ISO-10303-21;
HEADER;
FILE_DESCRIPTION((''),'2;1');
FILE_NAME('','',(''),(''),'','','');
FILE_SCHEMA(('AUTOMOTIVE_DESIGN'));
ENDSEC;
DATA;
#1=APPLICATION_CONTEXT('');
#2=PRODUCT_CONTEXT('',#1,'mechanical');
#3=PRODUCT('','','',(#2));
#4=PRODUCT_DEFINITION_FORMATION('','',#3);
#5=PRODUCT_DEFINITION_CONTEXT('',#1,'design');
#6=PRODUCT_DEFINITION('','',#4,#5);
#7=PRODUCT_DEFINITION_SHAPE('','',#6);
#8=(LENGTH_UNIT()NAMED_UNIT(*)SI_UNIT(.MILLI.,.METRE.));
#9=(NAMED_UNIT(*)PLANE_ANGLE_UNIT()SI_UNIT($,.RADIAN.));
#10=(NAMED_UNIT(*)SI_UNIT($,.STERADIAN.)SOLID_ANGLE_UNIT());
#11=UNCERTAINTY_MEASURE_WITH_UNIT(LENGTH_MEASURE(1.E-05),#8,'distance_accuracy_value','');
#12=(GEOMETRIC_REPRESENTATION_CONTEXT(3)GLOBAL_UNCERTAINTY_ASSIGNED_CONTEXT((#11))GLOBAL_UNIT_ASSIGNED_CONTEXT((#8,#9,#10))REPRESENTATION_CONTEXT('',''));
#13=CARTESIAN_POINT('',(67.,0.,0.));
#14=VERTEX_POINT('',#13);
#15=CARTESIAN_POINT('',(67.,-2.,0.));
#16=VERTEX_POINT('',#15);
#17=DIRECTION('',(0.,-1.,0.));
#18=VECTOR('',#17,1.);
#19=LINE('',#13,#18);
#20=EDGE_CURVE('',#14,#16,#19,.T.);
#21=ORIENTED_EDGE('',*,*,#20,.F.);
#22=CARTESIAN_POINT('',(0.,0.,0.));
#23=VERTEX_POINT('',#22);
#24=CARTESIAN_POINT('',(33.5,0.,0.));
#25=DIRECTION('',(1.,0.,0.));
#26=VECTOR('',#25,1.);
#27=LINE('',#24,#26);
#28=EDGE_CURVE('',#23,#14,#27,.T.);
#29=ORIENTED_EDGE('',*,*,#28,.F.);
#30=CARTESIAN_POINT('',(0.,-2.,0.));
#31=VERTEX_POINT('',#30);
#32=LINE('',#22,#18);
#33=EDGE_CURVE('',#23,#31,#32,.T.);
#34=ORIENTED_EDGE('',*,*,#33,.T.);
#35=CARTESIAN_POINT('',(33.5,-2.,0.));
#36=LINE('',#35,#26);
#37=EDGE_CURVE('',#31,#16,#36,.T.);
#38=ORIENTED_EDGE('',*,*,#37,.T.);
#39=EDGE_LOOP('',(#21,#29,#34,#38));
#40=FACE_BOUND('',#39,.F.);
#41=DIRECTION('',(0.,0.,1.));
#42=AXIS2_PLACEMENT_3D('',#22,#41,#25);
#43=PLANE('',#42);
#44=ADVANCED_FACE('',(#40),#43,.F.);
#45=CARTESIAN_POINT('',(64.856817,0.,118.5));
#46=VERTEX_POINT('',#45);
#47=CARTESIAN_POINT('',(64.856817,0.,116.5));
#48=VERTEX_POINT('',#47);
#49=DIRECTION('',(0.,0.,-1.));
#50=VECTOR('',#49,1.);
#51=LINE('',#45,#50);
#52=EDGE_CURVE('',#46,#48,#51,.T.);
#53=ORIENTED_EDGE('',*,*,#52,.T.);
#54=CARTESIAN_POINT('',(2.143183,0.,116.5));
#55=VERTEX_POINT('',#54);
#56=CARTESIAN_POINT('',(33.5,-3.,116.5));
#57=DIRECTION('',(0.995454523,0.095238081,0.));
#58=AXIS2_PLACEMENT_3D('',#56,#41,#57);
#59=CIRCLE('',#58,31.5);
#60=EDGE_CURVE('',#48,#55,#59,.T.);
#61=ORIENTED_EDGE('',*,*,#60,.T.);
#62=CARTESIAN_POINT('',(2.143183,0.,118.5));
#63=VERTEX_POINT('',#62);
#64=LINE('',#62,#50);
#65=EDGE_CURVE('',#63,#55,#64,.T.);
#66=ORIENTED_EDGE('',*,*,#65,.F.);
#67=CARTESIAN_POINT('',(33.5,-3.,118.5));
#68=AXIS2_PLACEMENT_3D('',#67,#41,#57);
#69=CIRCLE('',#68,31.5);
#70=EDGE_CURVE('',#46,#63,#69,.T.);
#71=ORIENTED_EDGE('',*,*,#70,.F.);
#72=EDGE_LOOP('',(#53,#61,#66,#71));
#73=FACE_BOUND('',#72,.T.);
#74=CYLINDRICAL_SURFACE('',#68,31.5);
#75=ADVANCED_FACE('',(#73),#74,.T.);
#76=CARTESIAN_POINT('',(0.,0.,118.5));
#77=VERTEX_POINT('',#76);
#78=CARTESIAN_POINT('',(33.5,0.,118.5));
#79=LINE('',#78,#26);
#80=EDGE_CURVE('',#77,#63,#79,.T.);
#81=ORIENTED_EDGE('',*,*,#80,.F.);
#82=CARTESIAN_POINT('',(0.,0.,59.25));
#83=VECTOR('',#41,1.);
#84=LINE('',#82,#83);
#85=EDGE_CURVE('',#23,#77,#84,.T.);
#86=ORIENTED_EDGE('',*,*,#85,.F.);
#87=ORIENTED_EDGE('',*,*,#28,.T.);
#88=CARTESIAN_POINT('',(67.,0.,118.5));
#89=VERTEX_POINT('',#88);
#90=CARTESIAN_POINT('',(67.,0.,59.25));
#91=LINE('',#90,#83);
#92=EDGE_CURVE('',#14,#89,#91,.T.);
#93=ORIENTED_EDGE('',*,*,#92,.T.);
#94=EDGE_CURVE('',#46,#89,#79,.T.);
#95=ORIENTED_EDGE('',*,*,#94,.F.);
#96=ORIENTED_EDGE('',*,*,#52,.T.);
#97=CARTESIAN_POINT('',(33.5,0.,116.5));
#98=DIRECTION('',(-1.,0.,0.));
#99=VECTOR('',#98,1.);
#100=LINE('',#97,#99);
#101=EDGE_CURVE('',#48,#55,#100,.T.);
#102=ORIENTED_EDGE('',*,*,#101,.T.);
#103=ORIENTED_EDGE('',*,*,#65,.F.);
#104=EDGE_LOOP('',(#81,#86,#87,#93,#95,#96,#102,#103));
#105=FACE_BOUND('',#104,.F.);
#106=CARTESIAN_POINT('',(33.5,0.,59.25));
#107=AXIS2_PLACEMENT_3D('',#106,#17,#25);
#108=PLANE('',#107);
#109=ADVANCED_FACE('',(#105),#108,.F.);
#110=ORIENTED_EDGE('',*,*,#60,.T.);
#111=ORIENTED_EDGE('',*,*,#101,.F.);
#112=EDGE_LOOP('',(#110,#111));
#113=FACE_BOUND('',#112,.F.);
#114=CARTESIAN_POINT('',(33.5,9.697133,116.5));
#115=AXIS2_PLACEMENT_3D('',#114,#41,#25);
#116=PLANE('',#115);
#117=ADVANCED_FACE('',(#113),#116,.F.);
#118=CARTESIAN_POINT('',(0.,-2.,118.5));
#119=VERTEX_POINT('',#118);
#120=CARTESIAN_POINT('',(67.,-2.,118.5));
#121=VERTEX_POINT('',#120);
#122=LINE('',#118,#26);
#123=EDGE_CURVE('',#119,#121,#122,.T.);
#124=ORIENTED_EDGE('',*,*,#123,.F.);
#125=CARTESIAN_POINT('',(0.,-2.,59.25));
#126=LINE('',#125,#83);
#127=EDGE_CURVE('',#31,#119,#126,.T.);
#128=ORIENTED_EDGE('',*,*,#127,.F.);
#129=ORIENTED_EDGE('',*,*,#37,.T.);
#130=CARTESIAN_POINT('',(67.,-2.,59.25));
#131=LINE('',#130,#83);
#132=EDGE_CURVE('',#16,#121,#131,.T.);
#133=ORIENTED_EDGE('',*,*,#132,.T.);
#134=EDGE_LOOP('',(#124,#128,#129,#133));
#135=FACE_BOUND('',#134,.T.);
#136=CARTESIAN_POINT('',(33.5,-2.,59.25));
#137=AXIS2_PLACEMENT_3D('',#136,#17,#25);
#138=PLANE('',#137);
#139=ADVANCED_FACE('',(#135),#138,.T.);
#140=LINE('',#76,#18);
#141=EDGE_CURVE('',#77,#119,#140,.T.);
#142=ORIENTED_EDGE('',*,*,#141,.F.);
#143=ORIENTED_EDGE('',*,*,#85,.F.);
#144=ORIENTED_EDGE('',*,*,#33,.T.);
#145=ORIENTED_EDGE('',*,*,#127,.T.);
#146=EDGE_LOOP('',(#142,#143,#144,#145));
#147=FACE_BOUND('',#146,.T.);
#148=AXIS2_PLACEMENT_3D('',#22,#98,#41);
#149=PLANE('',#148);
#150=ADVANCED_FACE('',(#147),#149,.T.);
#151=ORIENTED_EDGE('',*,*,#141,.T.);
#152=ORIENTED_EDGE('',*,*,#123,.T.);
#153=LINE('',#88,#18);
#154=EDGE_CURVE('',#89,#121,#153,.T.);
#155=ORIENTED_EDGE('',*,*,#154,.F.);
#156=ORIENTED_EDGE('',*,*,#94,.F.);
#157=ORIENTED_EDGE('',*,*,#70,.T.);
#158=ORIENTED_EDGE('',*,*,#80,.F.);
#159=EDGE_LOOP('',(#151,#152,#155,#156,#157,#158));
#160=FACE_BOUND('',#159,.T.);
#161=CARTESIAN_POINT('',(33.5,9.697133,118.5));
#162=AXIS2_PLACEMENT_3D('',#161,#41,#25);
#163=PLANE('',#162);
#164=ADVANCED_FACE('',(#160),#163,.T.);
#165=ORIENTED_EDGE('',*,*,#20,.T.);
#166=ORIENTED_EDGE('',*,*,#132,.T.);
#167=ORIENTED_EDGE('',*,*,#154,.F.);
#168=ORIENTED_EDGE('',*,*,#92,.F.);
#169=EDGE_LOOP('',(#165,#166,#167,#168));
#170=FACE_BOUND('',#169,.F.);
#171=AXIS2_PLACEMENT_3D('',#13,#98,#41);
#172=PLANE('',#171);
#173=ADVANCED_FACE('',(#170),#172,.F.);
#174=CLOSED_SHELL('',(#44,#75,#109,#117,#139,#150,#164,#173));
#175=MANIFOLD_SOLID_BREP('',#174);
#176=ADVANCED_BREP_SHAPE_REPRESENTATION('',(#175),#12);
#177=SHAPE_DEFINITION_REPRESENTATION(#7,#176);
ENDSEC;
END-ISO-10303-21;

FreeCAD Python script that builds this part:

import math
import FreeCAD as App
import Part
import Sketcher


def add_polygon(sketch, points):
    """Adds a closed chain of lines whose ends are joined by coincident constraints."""
    first, n = sketch.GeometryCount, len(points)
    for a, b in zip(points, points[1:] + points[:1]):
        sketch.addGeometry(Part.LineSegment(App.Vector(*a, 0), App.Vector(*b, 0)), False)
    for i in range(n):
        sketch.addConstraint(Sketcher.Constraint("Coincident", first + i, 2, first + (i + 1) % n, 1))

doc = App.newDocument("Part")
body = doc.addObject("PartDesign::Body", "Body")

# Sketch on XZ plane
sketch1 = body.newObject("Sketcher::SketchObject", "Sketch")
sketch1.AttachmentSupport = (doc.getObject("XZ_Plane"), [""])
sketch1.MapMode = "FlatFace"
add_polygon(sketch1, [(0, 118), (0, 0), (67, 0), (67, 118)])  # lines 0-3
sketch1.addConstraint([
    Sketcher.Constraint("Vertical", 0),
    Sketcher.Constraint("Horizontal", 1),
    Sketcher.Constraint("Vertical", 2),
    Sketcher.Constraint("Horizontal", 3),
    Sketcher.Constraint("Coincident", 0, 2, -1, 1),
    Sketcher.Constraint("DistanceX", 1, 1, 1, 2, 67.0),
    Sketcher.Constraint("DistanceY", 0, 2, 0, 1, 118.5),
])
pad1 = body.newObject("PartDesign::Pad", "Pad")
pad1.Profile = sketch1
pad1.Length = 2

# Sketch on XY plane
sketch2 = body.newObject("Sketcher::SketchObject", "Sketch001")
sketch2.AttachmentSupport = (doc.getObject("XY_Plane"), [""])
sketch2.MapMode = "FlatFace"
sketch2.AttachmentOffset = App.Placement(App.Vector(0, 0, 118.5), App.Rotation())
sketch2.addGeometry([
    Part.ArcOfCircle(Part.Circle(App.Vector(33.5, -3, 0), App.Vector(0, 0, 1), 31.5), math.radians(5), math.radians(175)),
    Part.ArcOfCircle(Part.Circle(App.Vector(33.5, -3, 0), App.Vector(0, 0, 1), 31.5), math.radians(174.53), math.radians(178.18)),
    Part.LineSegment(App.Vector(2, -2, 0), App.Vector(65, -2, 0)),
    Part.ArcOfCircle(Part.Circle(App.Vector(33.5, -3, 0), App.Vector(0, 0, 1), 31.5), math.radians(1.82), math.radians(5.47)),
], False)
sketch2.addConstraint([
    Sketcher.Constraint("Tangent", 0, 2, 1, 1),
    Sketcher.Constraint("Coincident", 1, 2, 2, 1),
    Sketcher.Constraint("Coincident", 2, 2, 3, 1),
    Sketcher.Constraint("Tangent", 3, 2, 0, 1),
    Sketcher.Constraint("Horizontal", 2),
    Sketcher.Constraint("Equal", 1, 3),
    Sketcher.Constraint("PointOnObject", 0, 2, -1),
    Sketcher.Constraint("PointOnObject", 3, 2, -1),
    Sketcher.Constraint("Radius", 0, 31.5),
    Sketcher.Constraint("DistanceY", 0, 3, -1, 1, 3.0),
    Sketcher.Constraint("DistanceY", 1, 2, -1, 1, 2.0),
    Sketcher.Constraint("DistanceX", -1, 1, 0, 3, 33.5),
    Sketcher.Constraint("Radius", 1, 31.500284),
])
pad2 = body.newObject("PartDesign::Pad", "Pad001")
pad2.Profile = sketch2
pad2.Length = 2
pad2.Reversed = True

doc.recompute()
